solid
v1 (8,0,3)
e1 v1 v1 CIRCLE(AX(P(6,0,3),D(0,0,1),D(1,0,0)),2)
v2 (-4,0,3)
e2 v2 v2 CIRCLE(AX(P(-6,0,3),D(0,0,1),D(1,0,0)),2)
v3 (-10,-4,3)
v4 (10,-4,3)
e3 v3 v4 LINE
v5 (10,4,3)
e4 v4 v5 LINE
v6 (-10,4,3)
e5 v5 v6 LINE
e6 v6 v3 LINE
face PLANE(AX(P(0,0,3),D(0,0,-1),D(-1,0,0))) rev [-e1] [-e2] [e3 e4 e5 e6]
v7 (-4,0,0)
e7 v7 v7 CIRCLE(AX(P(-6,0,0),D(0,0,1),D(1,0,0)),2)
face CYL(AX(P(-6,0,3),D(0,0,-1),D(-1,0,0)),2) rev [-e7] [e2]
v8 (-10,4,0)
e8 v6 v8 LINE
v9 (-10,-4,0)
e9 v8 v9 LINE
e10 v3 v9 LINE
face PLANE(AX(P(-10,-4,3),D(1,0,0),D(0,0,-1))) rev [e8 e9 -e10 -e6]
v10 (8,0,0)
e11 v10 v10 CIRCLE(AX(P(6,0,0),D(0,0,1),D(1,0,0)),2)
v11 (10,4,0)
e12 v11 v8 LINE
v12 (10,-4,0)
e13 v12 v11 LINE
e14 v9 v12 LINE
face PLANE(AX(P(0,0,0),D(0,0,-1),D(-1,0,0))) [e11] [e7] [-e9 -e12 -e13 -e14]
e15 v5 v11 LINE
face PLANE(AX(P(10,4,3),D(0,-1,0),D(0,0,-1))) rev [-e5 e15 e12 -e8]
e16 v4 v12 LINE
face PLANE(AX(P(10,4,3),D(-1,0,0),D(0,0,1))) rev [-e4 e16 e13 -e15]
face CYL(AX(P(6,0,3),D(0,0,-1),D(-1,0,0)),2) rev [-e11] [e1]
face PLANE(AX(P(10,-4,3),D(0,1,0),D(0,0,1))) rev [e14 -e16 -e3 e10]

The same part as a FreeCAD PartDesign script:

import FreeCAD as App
import Part
import Sketcher

V = App.Vector


def add_polygon(sketch, points):
    """Adds a closed chain of lines whose ends are joined by coincident constraints."""
    first, n = sketch.GeometryCount, len(points)
    for a, b in zip(points, points[1:] + points[:1]):
        sketch.addGeometry(Part.LineSegment(App.Vector(*a, 0), App.Vector(*b, 0)), False)
    for i in range(n):
        sketch.addConstraint(Sketcher.Constraint("Coincident", first + i, 2, first + (i + 1) % n, 1))

doc = App.newDocument("Part")
body = doc.addObject("PartDesign::Body", "Body")

# Sketch on XY plane
sketch1 = body.newObject("Sketcher::SketchObject", "Sketch")
sketch1.AttachmentSupport = (doc.getObject("XY_Plane"), [""])
sketch1.MapMode = "FlatFace"
add_polygon(sketch1, [(-10, 4), (-10, -4), (10, -4), (10, 4)])  # lines 0-3
sketch1.addGeometry(Part.Circle(V(-6, 0, 0), V(0, 0, 1), 2), False)  # 4
sketch1.addGeometry(Part.Circle(V(6, 0, 0), V(0, 0, 1), 2), False)  # 5
sketch1.addConstraint([
    Sketcher.Constraint("Vertical", 0),
    Sketcher.Constraint("Horizontal", 1),
    Sketcher.Constraint("Vertical", 2),
    Sketcher.Constraint("Horizontal", 3),
    Sketcher.Constraint("Equal", 4, 5),
    Sketcher.Constraint("Symmetric", 4, 3, 5, 3, -1, 1),
    Sketcher.Constraint("Symmetric", 0, 2, 2, 2, -1, 1),
    Sketcher.Constraint("PointOnObject", 4, 3, -1),
    Sketcher.Constraint("Diameter", 4, 4.0),
    Sketcher.Constraint("DistanceX", 1, 1, 1, 2, 20.0),
    Sketcher.Constraint("DistanceY", 0, 2, 0, 1, 8.0),
    Sketcher.Constraint("DistanceX", 4, 3, -1, 1, 6.0),
])
pad1 = body.newObject("PartDesign::Pad", "Pad")
pad1.Profile = sketch1
pad1.Length = 3

doc.recompute()
